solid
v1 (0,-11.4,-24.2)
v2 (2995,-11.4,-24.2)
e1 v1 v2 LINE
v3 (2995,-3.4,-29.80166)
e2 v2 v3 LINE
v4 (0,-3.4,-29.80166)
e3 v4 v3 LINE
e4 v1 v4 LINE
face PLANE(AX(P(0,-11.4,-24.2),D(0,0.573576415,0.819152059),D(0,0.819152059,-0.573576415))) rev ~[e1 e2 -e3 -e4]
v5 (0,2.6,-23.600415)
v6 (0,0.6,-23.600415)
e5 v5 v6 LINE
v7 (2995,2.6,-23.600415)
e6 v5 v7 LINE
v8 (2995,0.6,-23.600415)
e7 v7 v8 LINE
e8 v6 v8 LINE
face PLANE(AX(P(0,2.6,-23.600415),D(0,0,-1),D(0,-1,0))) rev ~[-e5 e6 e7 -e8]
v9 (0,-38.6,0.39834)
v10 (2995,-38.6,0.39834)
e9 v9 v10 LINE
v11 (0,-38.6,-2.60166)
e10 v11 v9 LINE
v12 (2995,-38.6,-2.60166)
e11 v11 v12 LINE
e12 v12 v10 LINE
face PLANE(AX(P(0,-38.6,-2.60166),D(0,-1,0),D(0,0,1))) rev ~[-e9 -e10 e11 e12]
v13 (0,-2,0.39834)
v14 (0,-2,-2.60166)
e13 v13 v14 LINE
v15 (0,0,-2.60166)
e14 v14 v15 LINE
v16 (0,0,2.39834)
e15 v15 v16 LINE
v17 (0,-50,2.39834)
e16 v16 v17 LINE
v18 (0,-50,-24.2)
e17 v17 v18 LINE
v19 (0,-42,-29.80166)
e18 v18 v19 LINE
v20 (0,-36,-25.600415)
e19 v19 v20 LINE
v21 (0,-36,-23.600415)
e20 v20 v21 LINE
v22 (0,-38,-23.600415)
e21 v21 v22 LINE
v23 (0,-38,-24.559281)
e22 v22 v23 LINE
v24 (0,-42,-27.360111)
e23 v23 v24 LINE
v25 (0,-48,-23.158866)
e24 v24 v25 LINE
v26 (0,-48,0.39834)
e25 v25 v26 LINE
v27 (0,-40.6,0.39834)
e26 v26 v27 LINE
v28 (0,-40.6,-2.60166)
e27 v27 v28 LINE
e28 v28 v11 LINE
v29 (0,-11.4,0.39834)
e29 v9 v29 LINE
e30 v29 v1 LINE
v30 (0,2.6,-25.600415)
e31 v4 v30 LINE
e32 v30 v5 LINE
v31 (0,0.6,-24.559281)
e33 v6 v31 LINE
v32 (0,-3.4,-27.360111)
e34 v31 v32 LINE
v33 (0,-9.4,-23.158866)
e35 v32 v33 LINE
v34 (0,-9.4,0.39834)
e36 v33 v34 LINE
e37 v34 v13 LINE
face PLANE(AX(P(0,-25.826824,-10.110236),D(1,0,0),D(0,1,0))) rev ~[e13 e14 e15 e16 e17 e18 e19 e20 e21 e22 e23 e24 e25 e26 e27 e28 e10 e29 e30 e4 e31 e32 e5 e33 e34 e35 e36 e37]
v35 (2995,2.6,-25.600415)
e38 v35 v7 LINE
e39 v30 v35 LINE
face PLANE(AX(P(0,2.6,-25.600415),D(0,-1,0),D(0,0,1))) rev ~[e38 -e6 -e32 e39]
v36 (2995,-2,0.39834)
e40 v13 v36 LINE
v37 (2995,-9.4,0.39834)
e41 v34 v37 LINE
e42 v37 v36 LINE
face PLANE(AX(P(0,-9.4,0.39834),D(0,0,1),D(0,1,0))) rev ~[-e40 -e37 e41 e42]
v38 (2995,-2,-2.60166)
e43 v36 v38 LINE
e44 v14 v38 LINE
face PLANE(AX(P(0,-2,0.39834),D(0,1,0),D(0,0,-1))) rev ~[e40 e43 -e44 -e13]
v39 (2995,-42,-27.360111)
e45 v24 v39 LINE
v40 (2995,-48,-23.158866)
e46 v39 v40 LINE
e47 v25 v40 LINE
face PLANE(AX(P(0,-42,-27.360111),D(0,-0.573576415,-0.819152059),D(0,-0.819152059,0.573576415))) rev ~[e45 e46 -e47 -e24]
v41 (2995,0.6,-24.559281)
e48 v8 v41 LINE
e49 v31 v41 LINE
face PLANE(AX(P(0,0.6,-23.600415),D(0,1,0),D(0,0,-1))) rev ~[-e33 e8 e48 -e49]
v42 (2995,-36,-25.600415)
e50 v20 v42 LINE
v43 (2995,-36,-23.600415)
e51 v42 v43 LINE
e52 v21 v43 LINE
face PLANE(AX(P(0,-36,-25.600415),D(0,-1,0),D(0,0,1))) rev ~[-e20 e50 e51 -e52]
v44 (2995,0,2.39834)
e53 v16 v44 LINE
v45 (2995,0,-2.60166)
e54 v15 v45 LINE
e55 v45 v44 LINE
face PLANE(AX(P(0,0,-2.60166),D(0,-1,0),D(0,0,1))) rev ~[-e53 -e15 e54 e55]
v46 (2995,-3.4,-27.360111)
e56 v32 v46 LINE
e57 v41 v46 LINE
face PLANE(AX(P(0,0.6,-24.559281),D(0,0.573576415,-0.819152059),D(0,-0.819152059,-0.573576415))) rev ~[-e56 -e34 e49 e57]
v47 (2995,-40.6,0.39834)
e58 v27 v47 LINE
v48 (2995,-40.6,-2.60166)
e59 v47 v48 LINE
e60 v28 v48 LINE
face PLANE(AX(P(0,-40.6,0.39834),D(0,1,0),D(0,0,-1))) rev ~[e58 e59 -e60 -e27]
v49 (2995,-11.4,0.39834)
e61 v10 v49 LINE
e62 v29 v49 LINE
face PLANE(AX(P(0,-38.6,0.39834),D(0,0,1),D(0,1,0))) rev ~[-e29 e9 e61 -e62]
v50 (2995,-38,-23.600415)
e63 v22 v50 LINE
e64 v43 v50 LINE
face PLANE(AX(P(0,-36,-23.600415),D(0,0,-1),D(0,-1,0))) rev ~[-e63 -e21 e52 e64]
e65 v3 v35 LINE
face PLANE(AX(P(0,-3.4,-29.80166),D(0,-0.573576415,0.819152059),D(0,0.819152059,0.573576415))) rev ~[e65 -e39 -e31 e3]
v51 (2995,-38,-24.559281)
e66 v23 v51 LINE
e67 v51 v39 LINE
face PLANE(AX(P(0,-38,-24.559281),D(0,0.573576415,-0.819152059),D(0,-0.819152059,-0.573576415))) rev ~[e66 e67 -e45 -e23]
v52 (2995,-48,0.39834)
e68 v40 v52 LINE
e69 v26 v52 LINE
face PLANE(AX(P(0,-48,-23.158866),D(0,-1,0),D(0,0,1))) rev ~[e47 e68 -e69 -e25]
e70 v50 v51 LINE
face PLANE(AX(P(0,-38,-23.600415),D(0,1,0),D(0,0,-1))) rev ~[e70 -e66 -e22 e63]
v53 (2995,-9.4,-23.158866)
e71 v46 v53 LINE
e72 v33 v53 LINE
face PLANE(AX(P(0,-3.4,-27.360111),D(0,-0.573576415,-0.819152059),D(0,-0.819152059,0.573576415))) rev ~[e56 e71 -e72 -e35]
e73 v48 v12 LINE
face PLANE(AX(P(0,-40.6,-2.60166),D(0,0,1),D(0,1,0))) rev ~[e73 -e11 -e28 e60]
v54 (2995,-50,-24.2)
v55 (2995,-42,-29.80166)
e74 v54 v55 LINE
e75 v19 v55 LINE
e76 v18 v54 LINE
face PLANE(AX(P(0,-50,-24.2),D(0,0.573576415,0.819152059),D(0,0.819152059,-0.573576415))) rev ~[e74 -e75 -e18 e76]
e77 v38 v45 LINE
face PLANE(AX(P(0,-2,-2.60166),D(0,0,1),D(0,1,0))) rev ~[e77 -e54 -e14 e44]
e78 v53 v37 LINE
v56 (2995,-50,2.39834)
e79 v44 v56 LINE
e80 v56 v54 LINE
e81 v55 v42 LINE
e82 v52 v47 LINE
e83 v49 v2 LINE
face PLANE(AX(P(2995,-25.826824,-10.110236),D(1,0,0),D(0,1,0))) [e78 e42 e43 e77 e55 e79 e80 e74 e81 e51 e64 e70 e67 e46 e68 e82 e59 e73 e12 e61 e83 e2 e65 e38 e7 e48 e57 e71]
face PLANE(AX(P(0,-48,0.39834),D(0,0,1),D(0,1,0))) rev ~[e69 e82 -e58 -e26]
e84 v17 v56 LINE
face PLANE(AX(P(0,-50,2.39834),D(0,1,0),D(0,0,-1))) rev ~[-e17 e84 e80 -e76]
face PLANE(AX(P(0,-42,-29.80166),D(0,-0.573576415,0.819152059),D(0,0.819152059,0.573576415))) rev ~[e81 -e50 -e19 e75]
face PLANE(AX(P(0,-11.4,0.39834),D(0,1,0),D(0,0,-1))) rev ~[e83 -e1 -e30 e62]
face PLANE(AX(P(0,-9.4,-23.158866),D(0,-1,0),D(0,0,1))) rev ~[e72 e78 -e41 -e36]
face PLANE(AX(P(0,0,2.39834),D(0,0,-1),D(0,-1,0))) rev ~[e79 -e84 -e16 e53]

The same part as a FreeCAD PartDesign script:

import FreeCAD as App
import Part
import Sketcher

V = App.Vector
Q = App.Units.Quantity


def add_polygon(sketch, points):
    """Adds a closed chain of lines whose ends are joined by coincident constraints."""
    first, n = sketch.GeometryCount, len(points)
    for a, b in zip(points, points[1:] + points[:1]):
        sketch.addGeometry(Part.LineSegment(App.Vector(*a, 0), App.Vector(*b, 0)), False)
    for i in range(n):
        sketch.addConstraint(Sketcher.Constraint("Coincident", first + i, 2, first + (i + 1) % n, 1))

doc = App.newDocument("Part")
body = doc.addObject("PartDesign::Body", "Body")

sketch1 = body.newObject("Sketcher::SketchObject", "Sketch")
sketch1.AttachmentSupport = (doc.getObject("YZ_Plane"), [""])
sketch1.MapMode = "FlatFace"
add_polygon(sketch1, [(-36, -25.6), (-36, -23.6), (-38, -23.6), (-38, -24.6), (-42, -27.4), (-48, -23.2), (-48, 0.4), (-40.6, 0.4), (-40.6, -2.6), (-38.6, -2.6), (-38.6, 0.4), (-11.4, 0.4), (-11.4, -24.2), (-3.4, -29.8), (2.6, -25.6), (2.6, -23.6), (0.6, -23.6), (0.6, -24.6), (-3.4, -27.4), (-9.4, -23.2), (-9.4, 0.4), (-2, 0.4), (-2, -2.6), (0, -2.6), (0, 2.4), (-50, 2.4), (-50, -24.2), (-42, -29.8)])
sketch1.addConstraint([
    Sketcher.Constraint("Vertical", 0),
    Sketcher.Constraint("Horizontal", 1),
    Sketcher.Constraint("Vertical", 2),
    Sketcher.Constraint("Vertical", 5),
    Sketcher.Constraint("Horizontal", 6),
    Sketcher.Constraint("Vertical", 7),
    Sketcher.Constraint("Horizontal", 8),
    Sketcher.Constraint("Vertical", 9),
    Sketcher.Constraint("Horizontal", 10),
    Sketcher.Constraint("Vertical", 11),
    Sketcher.Constraint("Vertical", 14),
    Sketcher.Constraint("Horizontal", 15),
    Sketcher.Constraint("Vertical", 16),
    Sketcher.Constraint("Vertical", 19),
    Sketcher.Constraint("Horizontal", 20),
    Sketcher.Constraint("Vertical", 21),
    Sketcher.Constraint("Horizontal", 22),
    Sketcher.Constraint("Vertical", 23),
    Sketcher.Constraint("Horizontal", 24),
    Sketcher.Constraint("Vertical", 25),
    Sketcher.Constraint("PointOnObject", 22, 2, -2),
    Sketcher.Constraint("Parallel", 4, 12),
    Sketcher.Constraint("Parallel", 3, 13),
    Sketcher.Constraint("Parallel", 13, 17),
    Sketcher.Constraint("Parallel", 12, 18),
    Sketcher.Constraint("Parallel", 18, 26),
    Sketcher.Constraint("Parallel", 17, 27),
    Sketcher.Constraint("Horizontal", 6, 2, 9, 2),
    Sketcher.Constraint("Horizontal", 1, 2, 14, 2),
    Sketcher.Constraint("Horizontal", 2, 2, 16, 2),
    Sketcher.Constraint("Horizontal", 3, 2, 17, 2),
    Sketcher.Constraint("Horizontal", 4, 2, 18, 2),
    Sketcher.Constraint("Horizontal", 10, 2, 19, 2),
    Sketcher.Constraint("Horizontal", 8, 2, 21, 2),
    Sketcher.Constraint("Horizontal", 11, 2, 25, 2),
    Sketcher.Constraint("Horizontal", 12, 2, 26, 2),
    Sketcher.Constraint("Horizontal", 13, 2, 27, 2),
    Sketcher.Constraint("Vertical", 12, 2, 17, 2),
    Sketcher.Constraint("Vertical", 3, 2, 26, 2),
    Sketcher.Constraint("Equal", 1, 8),
    Sketcher.Constraint("Equal", 6, 20),
    Sketcher.Constraint("Equal", 15, 22),
    Sketcher.Constraint("Equal", 22, 0),
    Sketcher.Constraint("Equal", 4, 13),
    Sketcher.Constraint("DistanceX", 1, 2, 1, 1, 2.0),
    Sketcher.Constraint("DistanceX", 24, 2, 24, 1, 50.0),
    Sketcher.Constraint("DistanceY", 7, 2, 7, 1, 3.0),
    Sketcher.Constraint("DistanceY", 23, 1, 23, 2, 5.0),
    Sketcher.Constraint("Angle", 3, Q("-145.000001 deg")),
    Sketcher.Constraint("Angle", 4, Q("145.000001 deg")),
    Sketcher.Constraint("DistanceX", 6, 1, 6, 2, 7.4),
    Sketcher.Constraint("DistanceX", 10, 1, 10, 2, 27.2),
    Sketcher.Constraint("DistanceX", 0, 2, -1, 1, 36.0),
    Sketcher.Constraint("DistanceY", 11, 2, -1, 1, 24.2),
    Sketcher.Constraint("DistanceY", 12, 2, 10, 2, 30.2),
    Sketcher.Constraint("DistanceY", 2, 2, 2, 1, 0.958866),
])
pad1 = body.newObject("PartDesign::Pad", "Pad")
pad1.Profile = sketch1
pad1.Length = 2995

doc.recompute()
